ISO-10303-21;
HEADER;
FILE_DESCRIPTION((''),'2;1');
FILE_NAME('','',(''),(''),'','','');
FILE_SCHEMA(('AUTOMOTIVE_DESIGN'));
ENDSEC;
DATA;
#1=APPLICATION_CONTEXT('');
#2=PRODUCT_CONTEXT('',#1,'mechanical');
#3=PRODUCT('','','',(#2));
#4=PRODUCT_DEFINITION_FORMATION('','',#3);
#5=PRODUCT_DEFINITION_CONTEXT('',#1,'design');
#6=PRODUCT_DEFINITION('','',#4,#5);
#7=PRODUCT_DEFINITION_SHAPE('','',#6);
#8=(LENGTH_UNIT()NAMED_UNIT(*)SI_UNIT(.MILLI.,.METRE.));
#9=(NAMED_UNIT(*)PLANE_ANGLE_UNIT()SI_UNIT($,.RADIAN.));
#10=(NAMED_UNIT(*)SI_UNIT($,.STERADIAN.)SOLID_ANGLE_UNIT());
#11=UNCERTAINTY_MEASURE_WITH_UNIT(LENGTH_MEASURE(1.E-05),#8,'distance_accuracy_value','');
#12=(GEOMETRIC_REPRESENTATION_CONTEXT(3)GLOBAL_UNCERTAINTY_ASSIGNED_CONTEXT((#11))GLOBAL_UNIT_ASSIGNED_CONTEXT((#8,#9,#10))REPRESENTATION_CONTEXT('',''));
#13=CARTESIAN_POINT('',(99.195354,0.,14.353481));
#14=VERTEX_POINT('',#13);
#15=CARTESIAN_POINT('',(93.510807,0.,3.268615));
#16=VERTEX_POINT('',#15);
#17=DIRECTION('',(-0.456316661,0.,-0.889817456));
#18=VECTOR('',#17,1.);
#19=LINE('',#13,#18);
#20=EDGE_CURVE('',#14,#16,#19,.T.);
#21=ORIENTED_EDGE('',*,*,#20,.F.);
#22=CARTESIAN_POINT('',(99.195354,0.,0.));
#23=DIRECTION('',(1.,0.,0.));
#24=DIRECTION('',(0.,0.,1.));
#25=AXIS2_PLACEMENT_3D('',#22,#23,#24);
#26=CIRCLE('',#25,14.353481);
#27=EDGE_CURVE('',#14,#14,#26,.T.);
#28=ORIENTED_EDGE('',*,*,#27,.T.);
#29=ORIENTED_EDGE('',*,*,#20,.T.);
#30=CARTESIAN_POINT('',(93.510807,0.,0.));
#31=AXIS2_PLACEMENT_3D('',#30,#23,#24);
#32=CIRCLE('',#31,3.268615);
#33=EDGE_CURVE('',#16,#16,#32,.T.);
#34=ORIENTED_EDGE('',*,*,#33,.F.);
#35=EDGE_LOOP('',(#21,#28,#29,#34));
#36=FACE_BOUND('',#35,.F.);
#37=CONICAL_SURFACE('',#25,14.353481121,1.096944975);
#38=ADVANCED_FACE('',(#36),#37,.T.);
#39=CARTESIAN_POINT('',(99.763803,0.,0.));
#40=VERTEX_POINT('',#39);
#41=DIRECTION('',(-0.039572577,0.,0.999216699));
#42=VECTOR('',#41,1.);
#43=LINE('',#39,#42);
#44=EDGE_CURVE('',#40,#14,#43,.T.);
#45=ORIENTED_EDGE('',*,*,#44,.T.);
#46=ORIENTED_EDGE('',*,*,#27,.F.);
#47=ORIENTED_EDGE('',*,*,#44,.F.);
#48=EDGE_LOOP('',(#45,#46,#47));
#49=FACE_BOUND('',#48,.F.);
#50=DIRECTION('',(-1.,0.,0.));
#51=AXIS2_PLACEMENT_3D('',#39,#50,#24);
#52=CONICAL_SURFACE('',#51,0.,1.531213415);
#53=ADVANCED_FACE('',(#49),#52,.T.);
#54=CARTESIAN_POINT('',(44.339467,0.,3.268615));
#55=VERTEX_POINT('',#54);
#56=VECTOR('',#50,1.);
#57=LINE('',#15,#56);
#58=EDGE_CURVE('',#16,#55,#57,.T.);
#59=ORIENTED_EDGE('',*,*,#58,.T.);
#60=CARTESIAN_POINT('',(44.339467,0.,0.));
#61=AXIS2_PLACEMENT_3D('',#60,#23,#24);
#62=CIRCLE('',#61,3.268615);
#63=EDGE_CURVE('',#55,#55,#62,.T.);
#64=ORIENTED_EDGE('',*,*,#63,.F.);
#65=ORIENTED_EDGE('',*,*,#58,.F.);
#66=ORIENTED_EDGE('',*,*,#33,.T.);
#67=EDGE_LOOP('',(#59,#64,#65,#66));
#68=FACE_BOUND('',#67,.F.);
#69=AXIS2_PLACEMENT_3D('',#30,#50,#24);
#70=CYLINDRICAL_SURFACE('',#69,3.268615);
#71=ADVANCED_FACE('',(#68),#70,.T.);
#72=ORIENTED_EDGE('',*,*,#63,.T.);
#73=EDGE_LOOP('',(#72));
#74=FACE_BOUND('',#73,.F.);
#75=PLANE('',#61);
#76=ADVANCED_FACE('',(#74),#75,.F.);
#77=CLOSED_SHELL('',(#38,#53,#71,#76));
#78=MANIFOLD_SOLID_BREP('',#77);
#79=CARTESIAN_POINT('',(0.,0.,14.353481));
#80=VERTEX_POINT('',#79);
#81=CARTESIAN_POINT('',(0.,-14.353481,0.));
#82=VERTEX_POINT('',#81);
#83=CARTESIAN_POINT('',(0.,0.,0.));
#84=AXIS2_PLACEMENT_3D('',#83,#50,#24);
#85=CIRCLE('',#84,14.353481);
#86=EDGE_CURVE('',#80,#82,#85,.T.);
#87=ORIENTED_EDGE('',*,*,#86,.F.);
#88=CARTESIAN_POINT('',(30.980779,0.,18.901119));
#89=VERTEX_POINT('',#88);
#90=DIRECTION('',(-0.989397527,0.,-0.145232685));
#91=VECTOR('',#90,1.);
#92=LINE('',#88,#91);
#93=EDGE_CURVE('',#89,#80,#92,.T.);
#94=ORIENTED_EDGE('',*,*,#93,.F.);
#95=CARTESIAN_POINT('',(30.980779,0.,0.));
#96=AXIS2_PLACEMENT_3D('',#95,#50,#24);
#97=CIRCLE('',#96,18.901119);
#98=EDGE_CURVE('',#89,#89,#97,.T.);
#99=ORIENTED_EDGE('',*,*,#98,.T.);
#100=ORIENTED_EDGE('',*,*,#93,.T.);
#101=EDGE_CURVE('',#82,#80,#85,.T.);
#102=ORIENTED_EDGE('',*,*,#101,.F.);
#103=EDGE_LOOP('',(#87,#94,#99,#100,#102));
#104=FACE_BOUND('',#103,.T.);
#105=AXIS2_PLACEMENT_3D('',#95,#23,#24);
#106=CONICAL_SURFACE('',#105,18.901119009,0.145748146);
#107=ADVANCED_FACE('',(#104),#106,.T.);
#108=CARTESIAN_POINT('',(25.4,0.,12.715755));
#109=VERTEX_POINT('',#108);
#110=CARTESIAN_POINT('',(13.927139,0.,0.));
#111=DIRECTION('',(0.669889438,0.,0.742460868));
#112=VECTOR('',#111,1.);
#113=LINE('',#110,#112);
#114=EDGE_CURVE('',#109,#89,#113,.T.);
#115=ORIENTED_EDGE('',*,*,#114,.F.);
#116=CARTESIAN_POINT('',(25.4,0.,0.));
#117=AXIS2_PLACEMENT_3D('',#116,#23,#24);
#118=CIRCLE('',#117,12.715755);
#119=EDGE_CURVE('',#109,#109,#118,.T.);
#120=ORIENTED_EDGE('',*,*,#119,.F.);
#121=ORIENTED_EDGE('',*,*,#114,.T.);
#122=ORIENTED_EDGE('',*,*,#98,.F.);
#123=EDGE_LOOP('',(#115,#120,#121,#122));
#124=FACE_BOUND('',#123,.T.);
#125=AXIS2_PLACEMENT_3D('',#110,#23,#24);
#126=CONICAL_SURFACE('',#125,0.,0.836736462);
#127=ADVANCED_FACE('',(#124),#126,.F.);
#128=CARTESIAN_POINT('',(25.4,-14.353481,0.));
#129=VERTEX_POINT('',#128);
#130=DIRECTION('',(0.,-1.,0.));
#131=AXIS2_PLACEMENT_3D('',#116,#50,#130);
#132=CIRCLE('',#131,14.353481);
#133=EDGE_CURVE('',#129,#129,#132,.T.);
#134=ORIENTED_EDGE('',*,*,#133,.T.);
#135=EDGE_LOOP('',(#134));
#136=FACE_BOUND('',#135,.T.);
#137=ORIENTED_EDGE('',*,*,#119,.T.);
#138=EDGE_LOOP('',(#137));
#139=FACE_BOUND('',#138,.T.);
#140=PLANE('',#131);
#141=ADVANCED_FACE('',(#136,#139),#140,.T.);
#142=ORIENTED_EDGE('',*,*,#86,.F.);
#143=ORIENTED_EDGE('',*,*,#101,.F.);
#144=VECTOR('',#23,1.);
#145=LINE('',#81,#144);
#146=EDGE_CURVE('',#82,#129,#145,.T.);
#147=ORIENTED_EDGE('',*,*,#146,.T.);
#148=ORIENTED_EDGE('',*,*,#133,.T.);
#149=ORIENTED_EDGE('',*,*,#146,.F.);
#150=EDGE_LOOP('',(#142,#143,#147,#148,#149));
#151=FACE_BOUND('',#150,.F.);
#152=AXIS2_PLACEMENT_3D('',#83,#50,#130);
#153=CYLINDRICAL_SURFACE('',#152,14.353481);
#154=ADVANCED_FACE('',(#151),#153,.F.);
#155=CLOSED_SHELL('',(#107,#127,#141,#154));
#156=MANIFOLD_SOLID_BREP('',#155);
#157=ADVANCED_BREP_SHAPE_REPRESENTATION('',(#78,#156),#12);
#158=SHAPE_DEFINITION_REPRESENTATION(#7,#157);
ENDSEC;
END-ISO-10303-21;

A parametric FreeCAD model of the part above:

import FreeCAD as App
import Part
import Sketcher

V = App.Vector
Q = App.Units.Quantity


def add_polygon(sketch, points):
    """Adds a closed chain of lines whose ends are joined by coincident constraints."""
    first, n = sketch.GeometryCount, len(points)
    for a, b in zip(points, points[1:] + points[:1]):
        sketch.addGeometry(Part.LineSegment(App.Vector(*a, 0), App.Vector(*b, 0)), False)
    for i in range(n):
        sketch.addConstraint(Sketcher.Constraint("Coincident", first + i, 2, first + (i + 1) % n, 1))

doc = App.newDocument("Part")
body = doc.addObject("PartDesign::Body", "Body")

# Sketch on XZ plane
sketch1 = body.newObject("Sketcher::SketchObject", "Sketch")
sketch1.AttachmentSupport = (doc.getObject("XZ_Plane"), [""])
sketch1.MapMode = "FlatFace"
add_polygon(sketch1, [(0, 14.353481), (0, 0), (13.927139, 0), (30.980779, 18.901119)])  # lines 0-3
sketch1.addConstraint([
    Sketcher.Constraint("Vertical", 0),
    Sketcher.Constraint("Horizontal", 1),
    Sketcher.Constraint("Coincident", 0, 2, -1, 1),
    Sketcher.Constraint("DistanceX", 1, 1, 1, 2, 13.927139),
    Sketcher.Constraint("DistanceY", 0, 2, 0, 1, 14.353481),
    Sketcher.Constraint("Distance", 3, 31.312772),
    Sketcher.Constraint("DistanceX", -1, 1, 2, 2, 30.980779),
])
revolution = body.newObject("PartDesign::Revolution", "Revolution")
revolution.Profile = sketch1
revolution.ReferenceAxis = (sketch1, ["H_Axis"])
revolution.Angle = 360

# Sketch on YZ plane
sketch2 = body.newObject("Sketcher::SketchObject", "Sketch001")
sketch2.AttachmentSupport = (doc.getObject("YZ_Plane"), [""])
sketch2.MapMode = "FlatFace"
sketch2.addGeometry(Part.Circle(V(0, 0, 0), V(0, 0, 1), 14.353481), False)
sketch2.addConstraint([
    Sketcher.Constraint("Coincident", 0, 3, -1, 1),
    Sketcher.Constraint("Diameter", 0, 28.706962),
])
pocket1 = body.newObject("PartDesign::Pocket", "Pocket")
pocket1.Profile = sketch2
pocket1.Length = Q("1 in")
pocket1.Reversed = True
body2 = doc.addObject("PartDesign::Body", "Body001")

# Sketch on XZ plane
sketch3 = body2.newObject("Sketcher::SketchObject", "Sketch002")
sketch3.AttachmentSupport = (doc.getObject("XZ_Plane001"), [""])
sketch3.MapMode = "FlatFace"
add_polygon(sketch3, [(44.339467, 3.268615), (44.339467, 0), (99.763803, 0), (99.195354, 14.353481), (93.510807, 3.268615)])  # lines 0-4
sketch3.addConstraint([
    Sketcher.Constraint("Vertical", 0),
    Sketcher.Constraint("Horizontal", 1),
    Sketcher.Constraint("Horizontal", 4),
    Sketcher.Constraint("PointOnObject", 0, 2, -1),
    Sketcher.Constraint("DistanceX", 4, 2, 4, 1, 49.17134),
    Sketcher.Constraint("Distance", 3, 12.457461),
    Sketcher.Constraint("DistanceX", 1, 1, 1, 2, 55.424336),
    Sketcher.Constraint("DistanceY", 0, 2, 0, 1, 3.268615),
    Sketcher.Constraint("DistanceY", -1, 1, 2, 2, 14.353481),
    Sketcher.Constraint("DistanceX", -1, 1, 0, 2, 44.339467),
])
revolution2 = body2.newObject("PartDesign::Revolution", "Revolution001")
revolution2.Profile = sketch3
revolution2.ReferenceAxis = (sketch3, ["H_Axis"])
revolution2.Angle = 360

doc.recompute()
